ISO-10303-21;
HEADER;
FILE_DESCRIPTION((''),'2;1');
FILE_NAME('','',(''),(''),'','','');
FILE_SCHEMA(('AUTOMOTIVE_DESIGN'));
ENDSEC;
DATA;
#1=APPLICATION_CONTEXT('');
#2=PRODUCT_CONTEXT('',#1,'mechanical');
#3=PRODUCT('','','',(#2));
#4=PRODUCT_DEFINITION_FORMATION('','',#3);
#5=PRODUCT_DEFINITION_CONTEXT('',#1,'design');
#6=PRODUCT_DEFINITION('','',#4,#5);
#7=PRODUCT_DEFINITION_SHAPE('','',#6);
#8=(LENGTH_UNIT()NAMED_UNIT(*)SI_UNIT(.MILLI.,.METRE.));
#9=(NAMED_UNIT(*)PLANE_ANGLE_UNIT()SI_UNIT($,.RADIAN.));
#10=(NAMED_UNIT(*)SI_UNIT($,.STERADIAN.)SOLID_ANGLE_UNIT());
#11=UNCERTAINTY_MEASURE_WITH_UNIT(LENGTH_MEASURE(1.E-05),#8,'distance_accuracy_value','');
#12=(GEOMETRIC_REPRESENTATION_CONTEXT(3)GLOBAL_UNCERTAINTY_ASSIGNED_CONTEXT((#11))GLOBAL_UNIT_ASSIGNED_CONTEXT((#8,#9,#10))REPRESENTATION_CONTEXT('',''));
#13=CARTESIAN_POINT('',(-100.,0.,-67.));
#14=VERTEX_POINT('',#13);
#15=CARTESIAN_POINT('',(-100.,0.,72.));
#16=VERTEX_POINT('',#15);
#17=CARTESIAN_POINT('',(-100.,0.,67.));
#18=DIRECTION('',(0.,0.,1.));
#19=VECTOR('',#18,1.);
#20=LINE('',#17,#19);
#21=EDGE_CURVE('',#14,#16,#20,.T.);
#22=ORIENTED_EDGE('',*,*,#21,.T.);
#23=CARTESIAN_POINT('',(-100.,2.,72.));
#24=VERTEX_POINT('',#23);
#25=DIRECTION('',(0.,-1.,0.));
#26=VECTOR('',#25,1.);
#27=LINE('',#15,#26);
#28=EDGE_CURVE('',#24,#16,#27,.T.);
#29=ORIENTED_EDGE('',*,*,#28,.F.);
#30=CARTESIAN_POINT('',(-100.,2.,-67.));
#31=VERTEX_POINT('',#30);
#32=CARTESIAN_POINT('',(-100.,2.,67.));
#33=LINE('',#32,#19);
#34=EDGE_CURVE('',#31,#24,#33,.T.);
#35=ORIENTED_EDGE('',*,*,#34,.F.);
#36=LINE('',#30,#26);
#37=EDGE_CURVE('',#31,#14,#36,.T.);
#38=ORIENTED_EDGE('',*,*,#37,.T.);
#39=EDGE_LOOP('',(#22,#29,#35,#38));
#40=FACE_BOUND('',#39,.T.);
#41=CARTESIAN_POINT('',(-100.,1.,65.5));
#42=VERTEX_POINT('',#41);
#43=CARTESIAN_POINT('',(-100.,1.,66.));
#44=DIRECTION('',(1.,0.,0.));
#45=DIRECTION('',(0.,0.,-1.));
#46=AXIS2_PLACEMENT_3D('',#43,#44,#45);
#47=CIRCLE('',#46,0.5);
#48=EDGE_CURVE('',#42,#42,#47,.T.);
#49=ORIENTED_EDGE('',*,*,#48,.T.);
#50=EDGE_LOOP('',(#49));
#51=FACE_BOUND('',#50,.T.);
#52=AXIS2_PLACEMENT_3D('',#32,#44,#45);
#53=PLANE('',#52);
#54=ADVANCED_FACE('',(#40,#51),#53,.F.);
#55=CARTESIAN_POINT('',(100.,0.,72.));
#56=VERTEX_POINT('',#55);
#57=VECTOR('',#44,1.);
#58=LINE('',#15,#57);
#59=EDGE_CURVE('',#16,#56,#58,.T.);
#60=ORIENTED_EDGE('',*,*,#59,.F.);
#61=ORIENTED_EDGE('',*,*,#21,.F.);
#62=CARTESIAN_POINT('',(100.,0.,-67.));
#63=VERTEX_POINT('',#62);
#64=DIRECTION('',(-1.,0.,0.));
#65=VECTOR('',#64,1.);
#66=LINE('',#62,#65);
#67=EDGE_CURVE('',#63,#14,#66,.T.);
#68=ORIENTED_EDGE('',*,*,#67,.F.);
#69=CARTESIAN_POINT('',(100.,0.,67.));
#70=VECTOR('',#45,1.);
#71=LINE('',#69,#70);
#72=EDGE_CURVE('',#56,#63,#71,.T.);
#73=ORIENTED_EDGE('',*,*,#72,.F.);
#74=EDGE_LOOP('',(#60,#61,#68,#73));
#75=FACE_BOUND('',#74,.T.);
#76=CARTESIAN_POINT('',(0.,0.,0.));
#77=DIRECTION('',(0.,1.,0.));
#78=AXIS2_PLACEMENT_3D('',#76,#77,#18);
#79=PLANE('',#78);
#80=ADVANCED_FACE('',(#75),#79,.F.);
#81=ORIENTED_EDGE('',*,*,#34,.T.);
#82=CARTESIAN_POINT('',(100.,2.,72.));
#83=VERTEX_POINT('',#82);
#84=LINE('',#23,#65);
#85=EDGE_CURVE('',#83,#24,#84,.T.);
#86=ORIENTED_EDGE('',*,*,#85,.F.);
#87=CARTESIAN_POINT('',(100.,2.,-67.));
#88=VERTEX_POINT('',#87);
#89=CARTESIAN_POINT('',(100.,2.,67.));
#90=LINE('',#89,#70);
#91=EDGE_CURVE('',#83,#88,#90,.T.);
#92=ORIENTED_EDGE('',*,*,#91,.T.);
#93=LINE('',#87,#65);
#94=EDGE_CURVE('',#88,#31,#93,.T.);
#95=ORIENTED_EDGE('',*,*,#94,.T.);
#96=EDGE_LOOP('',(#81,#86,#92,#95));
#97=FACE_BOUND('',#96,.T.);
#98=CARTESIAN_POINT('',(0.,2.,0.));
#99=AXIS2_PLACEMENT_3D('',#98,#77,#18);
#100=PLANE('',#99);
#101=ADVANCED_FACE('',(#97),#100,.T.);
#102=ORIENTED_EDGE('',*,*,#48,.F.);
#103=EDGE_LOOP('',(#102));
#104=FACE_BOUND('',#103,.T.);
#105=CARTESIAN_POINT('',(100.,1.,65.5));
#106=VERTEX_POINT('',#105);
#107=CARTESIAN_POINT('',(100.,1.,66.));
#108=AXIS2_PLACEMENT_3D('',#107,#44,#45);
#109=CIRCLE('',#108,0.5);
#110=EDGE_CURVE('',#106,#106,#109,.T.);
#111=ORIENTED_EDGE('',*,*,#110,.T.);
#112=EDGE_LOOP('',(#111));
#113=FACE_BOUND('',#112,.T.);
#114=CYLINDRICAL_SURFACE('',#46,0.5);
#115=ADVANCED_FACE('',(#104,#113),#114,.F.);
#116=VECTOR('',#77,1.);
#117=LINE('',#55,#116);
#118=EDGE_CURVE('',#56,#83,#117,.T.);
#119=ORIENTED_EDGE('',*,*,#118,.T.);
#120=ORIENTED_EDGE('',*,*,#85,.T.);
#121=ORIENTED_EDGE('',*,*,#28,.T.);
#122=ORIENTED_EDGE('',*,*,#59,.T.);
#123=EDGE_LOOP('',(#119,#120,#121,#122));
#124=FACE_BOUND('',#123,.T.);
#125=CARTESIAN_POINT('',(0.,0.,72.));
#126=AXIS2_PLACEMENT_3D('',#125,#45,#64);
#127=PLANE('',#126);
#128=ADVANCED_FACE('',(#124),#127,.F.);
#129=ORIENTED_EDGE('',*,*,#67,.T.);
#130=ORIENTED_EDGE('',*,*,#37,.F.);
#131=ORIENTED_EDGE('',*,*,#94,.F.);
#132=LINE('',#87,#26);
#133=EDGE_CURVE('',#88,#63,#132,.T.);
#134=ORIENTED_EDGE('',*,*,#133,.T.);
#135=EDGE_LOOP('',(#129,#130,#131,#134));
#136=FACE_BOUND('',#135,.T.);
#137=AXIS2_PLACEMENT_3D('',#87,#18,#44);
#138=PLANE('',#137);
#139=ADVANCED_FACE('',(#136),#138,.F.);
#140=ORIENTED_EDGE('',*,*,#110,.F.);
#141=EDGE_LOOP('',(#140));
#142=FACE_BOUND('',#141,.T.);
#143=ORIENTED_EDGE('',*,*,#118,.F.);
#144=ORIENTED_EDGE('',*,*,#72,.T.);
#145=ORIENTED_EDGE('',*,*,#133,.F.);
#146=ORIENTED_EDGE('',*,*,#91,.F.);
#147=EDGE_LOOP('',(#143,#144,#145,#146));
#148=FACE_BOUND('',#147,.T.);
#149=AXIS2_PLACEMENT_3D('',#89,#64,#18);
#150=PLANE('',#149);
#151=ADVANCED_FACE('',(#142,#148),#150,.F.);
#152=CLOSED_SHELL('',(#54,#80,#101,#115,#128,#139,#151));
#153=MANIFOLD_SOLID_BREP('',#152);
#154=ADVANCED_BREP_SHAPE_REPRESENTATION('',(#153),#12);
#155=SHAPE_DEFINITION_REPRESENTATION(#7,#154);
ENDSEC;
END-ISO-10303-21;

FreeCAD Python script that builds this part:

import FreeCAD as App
import Part
import Sketcher

V = App.Vector
Q = App.Units.Quantity

doc = App.newDocument("Part")
body = doc.addObject("PartDesign::Body", "Body")

sketch1 = body.newObject("Sketcher::SketchObject", "Sketch")
sketch1.AttachmentSupport = (doc.getObject("XZ_Plane"), [""])
sketch1.MapMode = "FlatFace"
sketch1.addGeometry(Part.LineSegment(V(-100, -67, 0), V(-100, 67, 0)), False)
sketch1.addGeometry(Part.LineSegment(V(-100, 67, 0), V(100, 67, 0)), False)
sketch1.addGeometry(Part.LineSegment(V(100, 67, 0), V(100, -67, 0)), False)
sketch1.addGeometry(Part.LineSegment(V(100, -67, 0), V(-100, -67, 0)), False)
sketch1.addConstraint(Sketcher.Constraint("Coincident", 0, 2, 1, 1))
sketch1.addConstraint(Sketcher.Constraint("Coincident", 1, 2, 2, 1))
sketch1.addConstraint(Sketcher.Constraint("Coincident", 2, 2, 3, 1))
sketch1.addConstraint(Sketcher.Constraint("Coincident", 3, 2, 0, 1))
sketch1.addConstraint(Sketcher.Constraint("Vertical", 0))
sketch1.addConstraint(Sketcher.Constraint("Horizontal", 1))
sketch1.addConstraint(Sketcher.Constraint("Vertical", 2))
sketch1.addConstraint(Sketcher.Constraint("Horizontal", 3))
sketch1.addConstraint(Sketcher.Constraint("Symmetric", 0, 2, 2, 2, -1, 1))
sketch1.addConstraint(Sketcher.Constraint("DistanceX", 1, 1, 1, 2, Q("200 mm")))
sketch1.addConstraint(Sketcher.Constraint("DistanceY", 0, 1, 0, 2, Q("134 mm")))
pad1 = body.newObject("PartDesign::Pad", "Pad")
pad1.Profile = sketch1
pad1.Length = 2
pad1.Reversed = True

sketch2 = body.newObject("Sketcher::SketchObject", "Sketch001")
sketch2.AttachmentSupport = (doc.getObject("YZ_Plane"), [""])
sketch2.MapMode = "FlatFace"
sketch2.AttachmentOffset = App.Placement(V(0, 0, 100), App.Rotation())
sketch2.addGeometry(Part.Circle(V(1, 66, 0), V(0, 0, 1), 0.5), False)
sketch2.addConstraint(Sketcher.Constraint("Diameter", 0, Q("1 mm")))
sketch2.addConstraint(Sketcher.Constraint("DistanceX", -1, 1, 0, 3, Q("1 mm")))
sketch2.addConstraint(Sketcher.Constraint("DistanceY", -1, 1, 0, 3, Q("66 mm")))
pocket1 = body.newObject("PartDesign::Pocket", "Pocket")
pocket1.Profile = sketch2
pocket1.Type = "ThroughAll"

sketch3 = body.newObject("Sketcher::SketchObject", "Sketch002")
sketch3.AttachmentSupport = (doc.getObject("XY_Plane"), [""])
sketch3.MapMode = "FlatFace"
sketch3.AttachmentOffset = App.Placement(V(0, 0, 67), App.Rotation())
sketch3.addGeometry(Part.LineSegment(V(-100, 2, 0), V(-100, 0, 0)), False)
sketch3.addGeometry(Part.LineSegment(V(-100, 0, 0), V(100, 0, 0)), False)
sketch3.addGeometry(Part.LineSegment(V(100, 0, 0), V(100, 2, 0)), False)
sketch3.addGeometry(Part.LineSegment(V(100, 2, 0), V(-100, 2, 0)), False)
sketch3.addConstraint(Sketcher.Constraint("Coincident", 0, 2, 1, 1))
sketch3.addConstraint(Sketcher.Constraint("Coincident", 1, 2, 2, 1))
sketch3.addConstraint(Sketcher.Constraint("Coincident", 2, 2, 3, 1))
sketch3.addConstraint(Sketcher.Constraint("Coincident", 3, 2, 0, 1))
sketch3.addConstraint(Sketcher.Constraint("Vertical", 0))
sketch3.addConstraint(Sketcher.Constraint("Horizontal", 1))
sketch3.addConstraint(Sketcher.Constraint("Vertical", 2))
sketch3.addConstraint(Sketcher.Constraint("Horizontal", 3))
sketch3.addConstraint(Sketcher.Constraint("Symmetric", 0, 2, 1, 2, -1, 1))
sketch3.addConstraint(Sketcher.Constraint("DistanceX", 1, 1, 1, 2, Q("200 mm")))
sketch3.addConstraint(Sketcher.Constraint("DistanceY", 0, 2, 0, 1, Q("2 mm")))
pad2 = body.newObject("PartDesign::Pad", "Pad001")
pad2.Profile = sketch3
pad2.Length = 5

doc.recompute()
